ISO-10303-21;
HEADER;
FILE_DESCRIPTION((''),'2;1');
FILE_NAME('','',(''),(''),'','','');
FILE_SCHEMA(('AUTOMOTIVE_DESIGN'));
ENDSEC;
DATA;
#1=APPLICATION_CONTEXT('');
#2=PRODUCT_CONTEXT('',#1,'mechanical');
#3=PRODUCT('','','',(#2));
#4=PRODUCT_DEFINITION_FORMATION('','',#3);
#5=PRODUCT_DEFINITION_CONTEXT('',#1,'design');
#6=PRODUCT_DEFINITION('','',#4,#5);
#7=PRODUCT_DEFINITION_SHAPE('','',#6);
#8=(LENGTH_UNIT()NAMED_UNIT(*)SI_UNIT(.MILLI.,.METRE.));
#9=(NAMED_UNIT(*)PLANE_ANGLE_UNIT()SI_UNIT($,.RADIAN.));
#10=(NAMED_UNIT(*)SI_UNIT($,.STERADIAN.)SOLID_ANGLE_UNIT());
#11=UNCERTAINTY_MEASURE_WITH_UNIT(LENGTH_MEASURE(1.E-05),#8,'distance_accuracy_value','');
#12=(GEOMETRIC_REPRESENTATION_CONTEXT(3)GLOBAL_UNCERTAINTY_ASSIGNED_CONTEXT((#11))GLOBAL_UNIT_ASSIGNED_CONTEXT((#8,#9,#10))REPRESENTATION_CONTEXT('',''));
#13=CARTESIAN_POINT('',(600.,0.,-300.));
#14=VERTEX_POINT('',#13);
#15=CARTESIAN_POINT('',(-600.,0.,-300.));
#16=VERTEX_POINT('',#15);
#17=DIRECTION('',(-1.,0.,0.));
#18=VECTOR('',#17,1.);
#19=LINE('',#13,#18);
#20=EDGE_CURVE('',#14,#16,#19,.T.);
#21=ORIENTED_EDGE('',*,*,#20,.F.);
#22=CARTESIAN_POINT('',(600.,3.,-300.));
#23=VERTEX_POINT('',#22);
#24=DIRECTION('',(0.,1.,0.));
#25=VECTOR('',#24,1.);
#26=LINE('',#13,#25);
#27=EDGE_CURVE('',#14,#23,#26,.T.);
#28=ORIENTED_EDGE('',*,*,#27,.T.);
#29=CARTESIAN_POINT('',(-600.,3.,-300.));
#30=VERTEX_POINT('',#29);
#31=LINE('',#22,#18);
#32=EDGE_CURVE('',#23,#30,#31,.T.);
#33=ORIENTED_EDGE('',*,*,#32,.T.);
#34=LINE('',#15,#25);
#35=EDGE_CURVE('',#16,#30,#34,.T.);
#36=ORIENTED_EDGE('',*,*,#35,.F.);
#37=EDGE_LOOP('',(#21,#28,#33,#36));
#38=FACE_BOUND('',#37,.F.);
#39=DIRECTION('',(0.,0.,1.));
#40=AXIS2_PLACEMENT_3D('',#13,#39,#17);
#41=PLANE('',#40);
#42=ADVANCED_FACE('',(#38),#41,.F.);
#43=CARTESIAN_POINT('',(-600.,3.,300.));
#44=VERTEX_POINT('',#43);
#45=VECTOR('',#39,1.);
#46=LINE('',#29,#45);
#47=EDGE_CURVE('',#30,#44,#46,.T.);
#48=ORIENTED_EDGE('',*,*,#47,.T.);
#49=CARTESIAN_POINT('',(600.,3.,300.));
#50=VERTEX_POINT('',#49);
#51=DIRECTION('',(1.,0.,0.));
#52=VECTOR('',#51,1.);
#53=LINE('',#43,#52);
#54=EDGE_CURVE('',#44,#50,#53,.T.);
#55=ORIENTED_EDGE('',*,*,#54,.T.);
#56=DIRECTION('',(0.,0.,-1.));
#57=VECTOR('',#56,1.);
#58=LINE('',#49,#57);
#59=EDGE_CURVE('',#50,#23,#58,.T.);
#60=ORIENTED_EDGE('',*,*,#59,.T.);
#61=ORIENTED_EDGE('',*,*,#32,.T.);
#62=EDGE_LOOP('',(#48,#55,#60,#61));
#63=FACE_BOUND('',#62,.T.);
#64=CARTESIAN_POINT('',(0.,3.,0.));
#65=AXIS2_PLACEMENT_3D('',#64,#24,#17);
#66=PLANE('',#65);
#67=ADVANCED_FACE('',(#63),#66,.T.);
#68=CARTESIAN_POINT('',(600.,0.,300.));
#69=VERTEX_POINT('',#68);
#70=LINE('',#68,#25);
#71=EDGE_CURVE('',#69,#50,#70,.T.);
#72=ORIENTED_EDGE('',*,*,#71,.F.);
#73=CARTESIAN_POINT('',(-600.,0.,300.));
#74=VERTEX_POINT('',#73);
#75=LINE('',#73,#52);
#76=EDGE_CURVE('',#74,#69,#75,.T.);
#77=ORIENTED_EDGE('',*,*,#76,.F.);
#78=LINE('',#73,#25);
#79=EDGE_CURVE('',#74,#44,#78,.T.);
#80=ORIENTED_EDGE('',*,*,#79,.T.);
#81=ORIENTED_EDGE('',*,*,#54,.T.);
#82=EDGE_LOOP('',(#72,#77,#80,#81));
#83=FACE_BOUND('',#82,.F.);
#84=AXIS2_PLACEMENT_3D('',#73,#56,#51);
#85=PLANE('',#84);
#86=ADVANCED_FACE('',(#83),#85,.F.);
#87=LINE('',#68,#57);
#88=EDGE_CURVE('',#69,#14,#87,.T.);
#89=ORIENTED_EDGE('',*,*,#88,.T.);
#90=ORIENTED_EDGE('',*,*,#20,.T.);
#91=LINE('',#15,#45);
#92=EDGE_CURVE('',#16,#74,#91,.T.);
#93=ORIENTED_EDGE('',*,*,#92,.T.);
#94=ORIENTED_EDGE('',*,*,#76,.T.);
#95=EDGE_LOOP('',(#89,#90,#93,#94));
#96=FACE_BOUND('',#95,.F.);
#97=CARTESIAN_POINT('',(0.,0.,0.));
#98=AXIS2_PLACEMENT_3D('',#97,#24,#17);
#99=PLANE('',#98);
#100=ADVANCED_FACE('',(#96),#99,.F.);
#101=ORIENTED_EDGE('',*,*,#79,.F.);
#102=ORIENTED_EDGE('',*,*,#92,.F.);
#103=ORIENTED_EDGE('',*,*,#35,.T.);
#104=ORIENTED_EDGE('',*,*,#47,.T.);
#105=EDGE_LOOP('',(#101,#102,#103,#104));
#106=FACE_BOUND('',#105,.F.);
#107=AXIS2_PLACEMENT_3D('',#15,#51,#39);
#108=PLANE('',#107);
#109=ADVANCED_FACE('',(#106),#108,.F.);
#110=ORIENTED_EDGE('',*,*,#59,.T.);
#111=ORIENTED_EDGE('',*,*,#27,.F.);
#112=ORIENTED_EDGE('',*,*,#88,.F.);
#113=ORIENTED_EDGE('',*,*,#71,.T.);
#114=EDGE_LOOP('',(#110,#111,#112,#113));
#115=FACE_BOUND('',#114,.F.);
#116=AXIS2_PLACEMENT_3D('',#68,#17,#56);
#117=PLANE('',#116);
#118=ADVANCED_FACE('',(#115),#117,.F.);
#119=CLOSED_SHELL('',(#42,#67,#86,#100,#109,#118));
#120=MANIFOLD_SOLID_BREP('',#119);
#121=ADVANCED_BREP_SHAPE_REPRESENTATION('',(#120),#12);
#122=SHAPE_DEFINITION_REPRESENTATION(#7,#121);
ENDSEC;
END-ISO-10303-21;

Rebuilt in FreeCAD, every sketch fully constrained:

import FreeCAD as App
import Part
import Sketcher
from FreeCAD import Vector


def add_polygon(sketch, points):
    """Adds a closed chain of lines whose ends are joined by coincident constraints."""
    first, n = sketch.GeometryCount, len(points)
    for a, b in zip(points, points[1:] + points[:1]):
        sketch.addGeometry(Part.LineSegment(App.Vector(*a, 0), App.Vector(*b, 0)), False)
    for i in range(n):
        sketch.addConstraint(Sketcher.Constraint("Coincident", first + i, 2, first + (i + 1) % n, 1))

doc = App.newDocument("Part")
body = doc.addObject("PartDesign::Body", "Body")

sketch1 = body.newObject("Sketcher::SketchObject", "Sketch")
sketch1.AttachmentSupport = (doc.getObject("XZ_Plane"), [""])
sketch1.MapMode = "FlatFace"
add_polygon(sketch1, [(600, 300), (600, -300), (-600, -300), (-600, 300)])
sketch1.addConstraint(Sketcher.Constraint("Vertical", 0))
sketch1.addConstraint(Sketcher.Constraint("Horizontal", 1))
sketch1.addConstraint(Sketcher.Constraint("Vertical", 2))
sketch1.addConstraint(Sketcher.Constraint("Horizontal", 3))
sketch1.addConstraint(Sketcher.Constraint("Symmetric", 0, 2, 2, 2, -1, 1))
sketch1.addConstraint(Sketcher.Constraint("DistanceX", 1, 2, 1, 1, 1200.0))
sketch1.addConstraint(Sketcher.Constraint("DistanceY", 0, 2, 0, 1, 600.0))
pad1 = body.newObject("PartDesign::Pad", "Pad")
pad1.Profile = sketch1
pad1.Length = 3
pad1.Reversed = True

doc.recompute()
